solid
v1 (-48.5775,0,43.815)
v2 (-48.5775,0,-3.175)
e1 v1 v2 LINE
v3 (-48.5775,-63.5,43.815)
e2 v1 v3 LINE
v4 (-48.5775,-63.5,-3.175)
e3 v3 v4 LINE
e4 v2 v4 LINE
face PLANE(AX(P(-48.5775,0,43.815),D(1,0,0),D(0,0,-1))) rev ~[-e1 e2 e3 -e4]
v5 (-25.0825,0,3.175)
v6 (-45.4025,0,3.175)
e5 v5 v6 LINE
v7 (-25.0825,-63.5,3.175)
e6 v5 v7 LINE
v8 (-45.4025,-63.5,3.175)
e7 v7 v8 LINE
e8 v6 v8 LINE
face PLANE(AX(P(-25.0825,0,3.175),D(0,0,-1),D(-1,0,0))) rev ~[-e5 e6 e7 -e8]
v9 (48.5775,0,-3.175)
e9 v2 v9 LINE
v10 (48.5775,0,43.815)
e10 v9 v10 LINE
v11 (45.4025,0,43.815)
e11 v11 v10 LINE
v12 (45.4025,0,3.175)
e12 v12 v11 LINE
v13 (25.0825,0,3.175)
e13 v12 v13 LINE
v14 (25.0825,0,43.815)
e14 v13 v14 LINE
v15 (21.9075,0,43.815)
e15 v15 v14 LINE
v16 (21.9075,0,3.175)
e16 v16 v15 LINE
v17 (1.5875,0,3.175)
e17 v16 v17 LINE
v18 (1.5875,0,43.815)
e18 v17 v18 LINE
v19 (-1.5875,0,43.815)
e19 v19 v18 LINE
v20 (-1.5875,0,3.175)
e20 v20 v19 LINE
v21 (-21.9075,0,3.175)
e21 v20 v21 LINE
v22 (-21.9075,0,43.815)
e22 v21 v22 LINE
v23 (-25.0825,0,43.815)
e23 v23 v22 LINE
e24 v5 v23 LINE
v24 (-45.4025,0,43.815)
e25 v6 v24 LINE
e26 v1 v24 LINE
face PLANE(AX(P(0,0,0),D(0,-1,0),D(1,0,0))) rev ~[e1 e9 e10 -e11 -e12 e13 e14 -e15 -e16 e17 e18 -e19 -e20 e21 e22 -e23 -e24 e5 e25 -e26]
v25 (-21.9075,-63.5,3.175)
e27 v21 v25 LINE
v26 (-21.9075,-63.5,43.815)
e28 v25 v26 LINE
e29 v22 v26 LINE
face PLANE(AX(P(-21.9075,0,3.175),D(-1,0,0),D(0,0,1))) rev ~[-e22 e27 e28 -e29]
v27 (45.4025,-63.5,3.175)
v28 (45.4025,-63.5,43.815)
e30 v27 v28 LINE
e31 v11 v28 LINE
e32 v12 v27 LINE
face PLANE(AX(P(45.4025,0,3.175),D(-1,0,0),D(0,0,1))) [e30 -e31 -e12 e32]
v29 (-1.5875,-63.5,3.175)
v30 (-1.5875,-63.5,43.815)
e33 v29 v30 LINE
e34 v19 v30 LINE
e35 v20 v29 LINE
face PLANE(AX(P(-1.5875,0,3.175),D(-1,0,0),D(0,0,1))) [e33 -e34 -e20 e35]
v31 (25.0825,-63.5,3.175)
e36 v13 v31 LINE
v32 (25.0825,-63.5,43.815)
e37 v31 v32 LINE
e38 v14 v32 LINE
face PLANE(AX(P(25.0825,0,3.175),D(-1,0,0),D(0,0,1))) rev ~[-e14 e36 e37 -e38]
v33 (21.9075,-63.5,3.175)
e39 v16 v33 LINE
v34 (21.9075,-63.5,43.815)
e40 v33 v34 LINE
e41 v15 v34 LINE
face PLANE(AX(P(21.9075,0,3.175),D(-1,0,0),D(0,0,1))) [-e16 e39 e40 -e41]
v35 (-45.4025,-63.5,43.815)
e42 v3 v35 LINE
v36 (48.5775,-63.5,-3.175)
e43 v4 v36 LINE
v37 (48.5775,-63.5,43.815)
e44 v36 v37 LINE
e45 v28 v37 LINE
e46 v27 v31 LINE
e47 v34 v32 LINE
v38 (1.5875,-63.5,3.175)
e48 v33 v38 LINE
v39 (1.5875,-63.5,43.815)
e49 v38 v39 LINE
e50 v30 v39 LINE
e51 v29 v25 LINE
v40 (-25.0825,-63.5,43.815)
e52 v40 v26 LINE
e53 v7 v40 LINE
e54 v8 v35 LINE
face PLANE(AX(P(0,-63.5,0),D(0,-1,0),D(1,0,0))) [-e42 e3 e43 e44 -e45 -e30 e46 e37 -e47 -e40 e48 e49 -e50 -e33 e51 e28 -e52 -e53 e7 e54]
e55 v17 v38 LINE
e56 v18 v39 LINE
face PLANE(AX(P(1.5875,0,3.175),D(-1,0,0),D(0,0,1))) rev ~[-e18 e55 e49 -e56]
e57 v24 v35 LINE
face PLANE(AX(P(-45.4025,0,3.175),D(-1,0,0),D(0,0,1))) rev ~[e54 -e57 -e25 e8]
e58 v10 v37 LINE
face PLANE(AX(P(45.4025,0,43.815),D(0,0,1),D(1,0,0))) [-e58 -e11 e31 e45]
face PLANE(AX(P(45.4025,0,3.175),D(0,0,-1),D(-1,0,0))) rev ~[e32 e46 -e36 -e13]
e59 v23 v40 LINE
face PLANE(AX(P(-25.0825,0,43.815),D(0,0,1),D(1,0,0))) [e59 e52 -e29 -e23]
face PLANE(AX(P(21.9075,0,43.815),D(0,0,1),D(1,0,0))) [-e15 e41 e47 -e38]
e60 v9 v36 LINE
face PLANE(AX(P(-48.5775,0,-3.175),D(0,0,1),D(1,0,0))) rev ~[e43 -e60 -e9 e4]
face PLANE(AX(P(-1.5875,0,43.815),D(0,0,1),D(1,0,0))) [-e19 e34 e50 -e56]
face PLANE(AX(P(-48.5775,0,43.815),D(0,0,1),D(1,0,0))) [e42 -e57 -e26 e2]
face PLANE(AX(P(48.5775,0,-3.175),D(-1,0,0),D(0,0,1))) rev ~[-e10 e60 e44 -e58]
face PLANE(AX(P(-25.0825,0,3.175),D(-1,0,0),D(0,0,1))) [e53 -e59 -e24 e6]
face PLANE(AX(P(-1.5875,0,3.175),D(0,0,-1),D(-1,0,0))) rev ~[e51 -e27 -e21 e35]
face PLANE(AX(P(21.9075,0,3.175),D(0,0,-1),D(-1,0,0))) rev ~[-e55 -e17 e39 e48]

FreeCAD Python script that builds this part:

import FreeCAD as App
import Part
import Sketcher
Q = App.Units.Quantity


def add_polygon(sketch, points):
    """Adds a closed chain of lines whose ends are joined by coincident constraints."""
    first, n = sketch.GeometryCount, len(points)
    for a, b in zip(points, points[1:] + points[:1]):
        sketch.addGeometry(Part.LineSegment(App.Vector(*a, 0), App.Vector(*b, 0)), False)
    for i in range(n):
        sketch.addConstraint(Sketcher.Constraint("Coincident", first + i, 2, first + (i + 1) % n, 1))

doc = App.newDocument("Part")
body = doc.addObject("PartDesign::Body", "Body")

# Sketch on XZ plane
sketch1 = doc.addObject("Sketcher::SketchObject", "Sketch")
body.addObject(sketch1)
sketch1.AttachmentSupport = (doc.XZ_Plane, [""])
sketch1.MapMode = "FlatFace"
add_polygon(sketch1, [(48.5775, -3.175), (48.5775, 43.815), (45.4025, 43.815), (45.4025, 3.175), (25.0825, 3.175), (25.0825, 43.815), (21.9075, 43.815), (21.9075, 3.175), (1.5875, 3.175), (1.5875, 43.815), (-1.5875, 43.815), (-1.5875, 3.175), (-21.9075, 3.175), (-21.9075, 43.815), (-25.0825, 43.815), (-25.0825, 3.175), (-45.4025, 3.175), (-45.4025, 43.815), (-48.5775, 43.815), (-48.5775, -3.175)])  # lines 0-19
sketch1.addConstraint([
    Sketcher.Constraint("Vertical", 0),
    Sketcher.Constraint("Horizontal", 1),
    Sketcher.Constraint("Vertical", 2),
    Sketcher.Constraint("Horizontal", 3),
    Sketcher.Constraint("Vertical", 4),
    Sketcher.Constraint("Horizontal", 5),
    Sketcher.Constraint("Vertical", 6),
    Sketcher.Constraint("Horizontal", 7),
    Sketcher.Constraint("Vertical", 8),
    Sketcher.Constraint("Horizontal", 9),
    Sketcher.Constraint("Vertical", 10),
    Sketcher.Constraint("Horizontal", 11),
    Sketcher.Constraint("Vertical", 12),
    Sketcher.Constraint("Horizontal", 13),
    Sketcher.Constraint("Vertical", 14),
    Sketcher.Constraint("Horizontal", 15),
    Sketcher.Constraint("Vertical", 16),
    Sketcher.Constraint("Horizontal", 17),
    Sketcher.Constraint("Vertical", 18),
    Sketcher.Constraint("Horizontal", 19),
    Sketcher.Constraint("Symmetric", 7, 2, 10, 2, -2),
    Sketcher.Constraint("Symmetric", 5, 2, 12, 2, -2),
    Sketcher.Constraint("Symmetric", 3, 2, 14, 2, -2),
    Sketcher.Constraint("Symmetric", 1, 2, 16, 2, -2),
    Sketcher.Constraint("Horizontal", 1, 2, 4, 2),
    Sketcher.Constraint("Horizontal", 3, 2, 6, 2),
    Sketcher.Constraint("Horizontal", 5, 2, 8, 2),
    Sketcher.Constraint("Equal", 1, 5),
    Sketcher.Constraint("Equal", 3, 7),
    Sketcher.Constraint("Equal", 5, 9),
    Sketcher.Constraint("Equal", 13, 17),
    Sketcher.Constraint("DistanceX", 3, 2, 3, 1, Q("0.8 in")),
    Sketcher.Constraint("DistanceY", 2, 2, 2, 1, Q("1.6 in")),
    Sketcher.Constraint("DistanceY", 0, 1, 0, 2, Q("1.85 in")),
    Sketcher.Constraint("DistanceX", 1, 2, 1, 1, Q("0.125 in")),
    Sketcher.Constraint("DistanceY", -1, 1, 0, 2, Q("1.725 in")),
])
pad1 = doc.addObject("PartDesign::Pad", "Pad")
body.addObject(pad1)
pad1.Profile = sketch1
pad1.Length = Q("2.5 in")

doc.recompute()
